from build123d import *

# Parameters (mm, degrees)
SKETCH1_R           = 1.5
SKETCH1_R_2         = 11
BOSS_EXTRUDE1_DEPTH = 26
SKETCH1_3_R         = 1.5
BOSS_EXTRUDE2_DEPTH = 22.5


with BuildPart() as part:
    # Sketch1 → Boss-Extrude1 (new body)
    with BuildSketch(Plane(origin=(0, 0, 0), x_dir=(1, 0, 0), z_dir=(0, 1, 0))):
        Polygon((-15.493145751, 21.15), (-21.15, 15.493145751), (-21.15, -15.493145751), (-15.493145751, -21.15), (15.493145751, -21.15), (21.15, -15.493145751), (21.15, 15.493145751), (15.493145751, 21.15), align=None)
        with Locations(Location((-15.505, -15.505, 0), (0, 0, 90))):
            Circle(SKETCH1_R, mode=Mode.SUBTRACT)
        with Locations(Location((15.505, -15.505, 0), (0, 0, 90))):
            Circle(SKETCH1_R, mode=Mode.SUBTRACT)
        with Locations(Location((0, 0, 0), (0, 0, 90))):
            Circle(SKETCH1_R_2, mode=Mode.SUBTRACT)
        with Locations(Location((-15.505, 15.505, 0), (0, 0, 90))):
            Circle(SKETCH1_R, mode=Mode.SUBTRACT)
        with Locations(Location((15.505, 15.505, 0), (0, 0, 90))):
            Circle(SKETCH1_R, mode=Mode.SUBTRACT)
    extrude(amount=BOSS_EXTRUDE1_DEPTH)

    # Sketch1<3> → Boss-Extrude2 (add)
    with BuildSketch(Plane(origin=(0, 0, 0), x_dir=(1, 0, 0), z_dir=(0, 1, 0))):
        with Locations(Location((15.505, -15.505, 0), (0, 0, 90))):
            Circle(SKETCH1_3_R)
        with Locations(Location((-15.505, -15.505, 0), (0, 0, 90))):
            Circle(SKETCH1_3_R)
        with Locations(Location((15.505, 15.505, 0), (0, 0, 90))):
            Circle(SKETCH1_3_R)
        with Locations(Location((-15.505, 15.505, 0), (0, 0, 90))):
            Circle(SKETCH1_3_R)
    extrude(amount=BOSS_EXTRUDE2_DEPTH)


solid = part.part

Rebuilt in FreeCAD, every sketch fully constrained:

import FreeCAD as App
import Part
import Sketcher

V = App.Vector
Q = App.Units.Quantity


def add_polygon(sketch, points):
    """Adds a closed chain of lines whose ends are joined by coincident constraints."""
    first, n = sketch.GeometryCount, len(points)
    for a, b in zip(points, points[1:] + points[:1]):
        sketch.addGeometry(Part.LineSegment(App.Vector(*a, 0), App.Vector(*b, 0)), False)
    for i in range(n):
        sketch.addConstraint(Sketcher.Constraint("Coincident", first + i, 2, first + (i + 1) % n, 1))

doc = App.newDocument("Part")
body = doc.addObject("PartDesign::Body", "Body")

sketch1 = body.newObject("Sketcher::SketchObject", "Sketch")
sketch1.AttachmentSupport = (doc.getObject("XZ_Plane"), [""])
sketch1.MapMode = "FlatFace"
add_polygon(sketch1, [(-15.5, -21.1), (-21.1, -15.5), (-21.1, 15.5), (-15.5, 21.1), (15.5, 21.1), (21.1, 15.5), (21.1, -15.5), (15.5, -21.1)])
sketch1.addGeometry(Part.Circle(V(-15.5, 15.5, 0), V(0, 0, 1), 1.5), False)
sketch1.addGeometry(Part.Circle(V(15.5, 15.5, 0), V(0, 0, 1), 1.5), False)
sketch1.addGeometry(Part.Circle(V(-15.5, -15.5, 0), V(0, 0, 1), 1.5), False)
sketch1.addGeometry(Part.Circle(V(0, 0, 0), V(0, 0, 1), 11), False)
sketch1.addGeometry(Part.Circle(V(15.5, -15.5, 0), V(0, 0, 1), 1.5), False)
sketch1.addConstraint([
    Sketcher.Constraint("Vertical", 1),
    Sketcher.Constraint("Horizontal", 3),
    Sketcher.Constraint("Vertical", 5),
    Sketcher.Constraint("Horizontal", 7),
    Sketcher.Constraint("Coincident", 11, 3, -1, 1),
    Sketcher.Constraint("Equal", 8, 9),
    Sketcher.Constraint("Equal", 9, 10),
    Sketcher.Constraint("Equal", 10, 12),
    Sketcher.Constraint("Symmetric", 9, 3, 10, 3, -1, 1),
    Sketcher.Constraint("Symmetric", 8, 3, 12, 3, -1, 1),
    Sketcher.Constraint("Symmetric", 0, 2, 4, 2, -1, 1),
    Sketcher.Constraint("Symmetric", 2, 2, 6, 2, -1, 1),
    Sketcher.Constraint("Symmetric", 8, 3, 9, 3, -2),
    Sketcher.Constraint("Perpendicular", 0, 2),
    Sketcher.Constraint("Perpendicular", 2, 4),
    Sketcher.Constraint("Perpendicular", 4, 6),
    Sketcher.Constraint("Horizontal", 1, 2, 4, 2),
    Sketcher.Constraint("Vertical", 3, 2, 6, 2),
    Sketcher.Constraint("Equal", 7, 1),
    Sketcher.Constraint("Diameter", 8, Q("3 mm")),
    Sketcher.Constraint("Diameter", 11, Q("22 mm")),
    Sketcher.Constraint("Distance", 0, Q("8 mm")),
    Sketcher.Constraint("DistanceX", 0, 2, -1, 1, Q("21.15 mm")),
    Sketcher.Constraint("DistanceX", 8, 3, 9, 3, Q("31.01 mm")),
    Sketcher.Constraint("DistanceY", 10, 3, 8, 3, Q("31.01 mm")),
])
pad1 = body.newObject("PartDesign::Pad", "Pad")
pad1.Profile = sketch1
pad1.Length = 26
pad1.Reversed = True

sketch2 = body.newObject("Sketcher::SketchObject", "Sketch001")
sketch2.AttachmentSupport = (doc.getObject("XZ_Plane"), [""])
sketch2.MapMode = "FlatFace"
sketch2.addGeometry([
    Part.Circle(V(15.5, 15.5, 0), V(0, 0, 1), 1.5),
    Part.Circle(V(-15.5, 15.5, 0), V(0, 0, 1), 1.5),
    Part.Circle(V(15.5, -15.5, 0), V(0, 0, 1), 1.5),
    Part.Circle(V(-15.5, -15.5, 0), V(0, 0, 1), 1.5),
], False)
sketch2.addConstraint([
    Sketcher.Constraint("Equal", 0, 1),
    Sketcher.Constraint("Equal", 1, 2),
    Sketcher.Constraint("Equal", 2, 3),
    Sketcher.Constraint("Symmetric", 1, 3, 2, 3, -1, 1),
    Sketcher.Constraint("Symmetric", 0, 3, 3, 3, -1, 1),
    Sketcher.Constraint("Symmetric", 0, 3, 1, 3, -2),
    Sketcher.Constraint("Diameter", 0, Q("3 mm")),
    Sketcher.Constraint("DistanceX", 1, 3, 0, 3, Q("31.01 mm")),
    Sketcher.Constraint("DistanceY", 2, 3, 0, 3, Q("31.01 mm")),
])
pad2 = body.newObject("PartDesign::Pad", "Pad001")
pad2.Profile = sketch2
pad2.Length = 22.5
pad2.Reversed = True

doc.recompute()
